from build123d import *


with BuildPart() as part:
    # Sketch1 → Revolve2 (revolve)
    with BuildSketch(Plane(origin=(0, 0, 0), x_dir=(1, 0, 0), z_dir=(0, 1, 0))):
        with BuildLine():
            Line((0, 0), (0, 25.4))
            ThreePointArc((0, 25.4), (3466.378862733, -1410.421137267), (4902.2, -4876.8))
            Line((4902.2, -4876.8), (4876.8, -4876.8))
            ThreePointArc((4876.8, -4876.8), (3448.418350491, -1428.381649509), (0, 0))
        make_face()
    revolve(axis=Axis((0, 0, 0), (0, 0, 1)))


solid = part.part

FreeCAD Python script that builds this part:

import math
import FreeCAD as App
import Part
import Sketcher
from FreeCAD import Vector
Q = App.Units.Quantity

doc = App.newDocument("Part")
body = doc.addObject("PartDesign::Body", "Body")

sketch1 = doc.addObject("Sketcher::SketchObject", "Sketch")
body.addObject(sketch1)
sketch1.AttachmentSupport = (doc.XZ_Plane, [""])
sketch1.MapMode = "FlatFace"
sketch1.addGeometry([
    Part.LineSegment(Vector(0, -25.4, 0), Vector(0, 0, 0)),
    Part.ArcOfCircle(Part.Circle(Vector(0, 4876.8, 0), Vector(0, 0, 1), 4876.8), math.radians(-90), math.radians(0)),
    Part.LineSegment(Vector(4876.8, 4876.8, 0), Vector(4902.2, 4876.8, 0)),
    Part.ArcOfCircle(Part.Circle(Vector(0, 4876.8, 0), Vector(0, 0, 1), 4902.2), math.radians(-90), math.radians(0)),
], False)
sketch1.addConstraint([
    Sketcher.Constraint("Coincident", 0, 2, 1, 1),
    Sketcher.Constraint("Coincident", 1, 2, 2, 1),
    Sketcher.Constraint("Coincident", 2, 2, 3, 2),
    Sketcher.Constraint("Coincident", 3, 1, 0, 1),
    Sketcher.Constraint("Vertical", 0),
    Sketcher.Constraint("Horizontal", 2),
    Sketcher.Constraint("Coincident", 0, 2, -1, 1),
    Sketcher.Constraint("Coincident", 3, 3, 1, 3),
    Sketcher.Constraint("PointOnObject", 1, 3, -2),
    Sketcher.Constraint("Radius", 1, Q("192 in")),
    Sketcher.Constraint("Radius", 3, Q("193 in")),
    Sketcher.Constraint("DistanceY", -1, 1, 2, 2, Q("192 in")),
])
revolution = doc.addObject("PartDesign::Revolution", "Revolution")
body.addObject(revolution)
revolution.Profile = sketch1
revolution.ReferenceAxis = (sketch1, ["V_Axis"])
revolution.Angle = 360

doc.recompute()
